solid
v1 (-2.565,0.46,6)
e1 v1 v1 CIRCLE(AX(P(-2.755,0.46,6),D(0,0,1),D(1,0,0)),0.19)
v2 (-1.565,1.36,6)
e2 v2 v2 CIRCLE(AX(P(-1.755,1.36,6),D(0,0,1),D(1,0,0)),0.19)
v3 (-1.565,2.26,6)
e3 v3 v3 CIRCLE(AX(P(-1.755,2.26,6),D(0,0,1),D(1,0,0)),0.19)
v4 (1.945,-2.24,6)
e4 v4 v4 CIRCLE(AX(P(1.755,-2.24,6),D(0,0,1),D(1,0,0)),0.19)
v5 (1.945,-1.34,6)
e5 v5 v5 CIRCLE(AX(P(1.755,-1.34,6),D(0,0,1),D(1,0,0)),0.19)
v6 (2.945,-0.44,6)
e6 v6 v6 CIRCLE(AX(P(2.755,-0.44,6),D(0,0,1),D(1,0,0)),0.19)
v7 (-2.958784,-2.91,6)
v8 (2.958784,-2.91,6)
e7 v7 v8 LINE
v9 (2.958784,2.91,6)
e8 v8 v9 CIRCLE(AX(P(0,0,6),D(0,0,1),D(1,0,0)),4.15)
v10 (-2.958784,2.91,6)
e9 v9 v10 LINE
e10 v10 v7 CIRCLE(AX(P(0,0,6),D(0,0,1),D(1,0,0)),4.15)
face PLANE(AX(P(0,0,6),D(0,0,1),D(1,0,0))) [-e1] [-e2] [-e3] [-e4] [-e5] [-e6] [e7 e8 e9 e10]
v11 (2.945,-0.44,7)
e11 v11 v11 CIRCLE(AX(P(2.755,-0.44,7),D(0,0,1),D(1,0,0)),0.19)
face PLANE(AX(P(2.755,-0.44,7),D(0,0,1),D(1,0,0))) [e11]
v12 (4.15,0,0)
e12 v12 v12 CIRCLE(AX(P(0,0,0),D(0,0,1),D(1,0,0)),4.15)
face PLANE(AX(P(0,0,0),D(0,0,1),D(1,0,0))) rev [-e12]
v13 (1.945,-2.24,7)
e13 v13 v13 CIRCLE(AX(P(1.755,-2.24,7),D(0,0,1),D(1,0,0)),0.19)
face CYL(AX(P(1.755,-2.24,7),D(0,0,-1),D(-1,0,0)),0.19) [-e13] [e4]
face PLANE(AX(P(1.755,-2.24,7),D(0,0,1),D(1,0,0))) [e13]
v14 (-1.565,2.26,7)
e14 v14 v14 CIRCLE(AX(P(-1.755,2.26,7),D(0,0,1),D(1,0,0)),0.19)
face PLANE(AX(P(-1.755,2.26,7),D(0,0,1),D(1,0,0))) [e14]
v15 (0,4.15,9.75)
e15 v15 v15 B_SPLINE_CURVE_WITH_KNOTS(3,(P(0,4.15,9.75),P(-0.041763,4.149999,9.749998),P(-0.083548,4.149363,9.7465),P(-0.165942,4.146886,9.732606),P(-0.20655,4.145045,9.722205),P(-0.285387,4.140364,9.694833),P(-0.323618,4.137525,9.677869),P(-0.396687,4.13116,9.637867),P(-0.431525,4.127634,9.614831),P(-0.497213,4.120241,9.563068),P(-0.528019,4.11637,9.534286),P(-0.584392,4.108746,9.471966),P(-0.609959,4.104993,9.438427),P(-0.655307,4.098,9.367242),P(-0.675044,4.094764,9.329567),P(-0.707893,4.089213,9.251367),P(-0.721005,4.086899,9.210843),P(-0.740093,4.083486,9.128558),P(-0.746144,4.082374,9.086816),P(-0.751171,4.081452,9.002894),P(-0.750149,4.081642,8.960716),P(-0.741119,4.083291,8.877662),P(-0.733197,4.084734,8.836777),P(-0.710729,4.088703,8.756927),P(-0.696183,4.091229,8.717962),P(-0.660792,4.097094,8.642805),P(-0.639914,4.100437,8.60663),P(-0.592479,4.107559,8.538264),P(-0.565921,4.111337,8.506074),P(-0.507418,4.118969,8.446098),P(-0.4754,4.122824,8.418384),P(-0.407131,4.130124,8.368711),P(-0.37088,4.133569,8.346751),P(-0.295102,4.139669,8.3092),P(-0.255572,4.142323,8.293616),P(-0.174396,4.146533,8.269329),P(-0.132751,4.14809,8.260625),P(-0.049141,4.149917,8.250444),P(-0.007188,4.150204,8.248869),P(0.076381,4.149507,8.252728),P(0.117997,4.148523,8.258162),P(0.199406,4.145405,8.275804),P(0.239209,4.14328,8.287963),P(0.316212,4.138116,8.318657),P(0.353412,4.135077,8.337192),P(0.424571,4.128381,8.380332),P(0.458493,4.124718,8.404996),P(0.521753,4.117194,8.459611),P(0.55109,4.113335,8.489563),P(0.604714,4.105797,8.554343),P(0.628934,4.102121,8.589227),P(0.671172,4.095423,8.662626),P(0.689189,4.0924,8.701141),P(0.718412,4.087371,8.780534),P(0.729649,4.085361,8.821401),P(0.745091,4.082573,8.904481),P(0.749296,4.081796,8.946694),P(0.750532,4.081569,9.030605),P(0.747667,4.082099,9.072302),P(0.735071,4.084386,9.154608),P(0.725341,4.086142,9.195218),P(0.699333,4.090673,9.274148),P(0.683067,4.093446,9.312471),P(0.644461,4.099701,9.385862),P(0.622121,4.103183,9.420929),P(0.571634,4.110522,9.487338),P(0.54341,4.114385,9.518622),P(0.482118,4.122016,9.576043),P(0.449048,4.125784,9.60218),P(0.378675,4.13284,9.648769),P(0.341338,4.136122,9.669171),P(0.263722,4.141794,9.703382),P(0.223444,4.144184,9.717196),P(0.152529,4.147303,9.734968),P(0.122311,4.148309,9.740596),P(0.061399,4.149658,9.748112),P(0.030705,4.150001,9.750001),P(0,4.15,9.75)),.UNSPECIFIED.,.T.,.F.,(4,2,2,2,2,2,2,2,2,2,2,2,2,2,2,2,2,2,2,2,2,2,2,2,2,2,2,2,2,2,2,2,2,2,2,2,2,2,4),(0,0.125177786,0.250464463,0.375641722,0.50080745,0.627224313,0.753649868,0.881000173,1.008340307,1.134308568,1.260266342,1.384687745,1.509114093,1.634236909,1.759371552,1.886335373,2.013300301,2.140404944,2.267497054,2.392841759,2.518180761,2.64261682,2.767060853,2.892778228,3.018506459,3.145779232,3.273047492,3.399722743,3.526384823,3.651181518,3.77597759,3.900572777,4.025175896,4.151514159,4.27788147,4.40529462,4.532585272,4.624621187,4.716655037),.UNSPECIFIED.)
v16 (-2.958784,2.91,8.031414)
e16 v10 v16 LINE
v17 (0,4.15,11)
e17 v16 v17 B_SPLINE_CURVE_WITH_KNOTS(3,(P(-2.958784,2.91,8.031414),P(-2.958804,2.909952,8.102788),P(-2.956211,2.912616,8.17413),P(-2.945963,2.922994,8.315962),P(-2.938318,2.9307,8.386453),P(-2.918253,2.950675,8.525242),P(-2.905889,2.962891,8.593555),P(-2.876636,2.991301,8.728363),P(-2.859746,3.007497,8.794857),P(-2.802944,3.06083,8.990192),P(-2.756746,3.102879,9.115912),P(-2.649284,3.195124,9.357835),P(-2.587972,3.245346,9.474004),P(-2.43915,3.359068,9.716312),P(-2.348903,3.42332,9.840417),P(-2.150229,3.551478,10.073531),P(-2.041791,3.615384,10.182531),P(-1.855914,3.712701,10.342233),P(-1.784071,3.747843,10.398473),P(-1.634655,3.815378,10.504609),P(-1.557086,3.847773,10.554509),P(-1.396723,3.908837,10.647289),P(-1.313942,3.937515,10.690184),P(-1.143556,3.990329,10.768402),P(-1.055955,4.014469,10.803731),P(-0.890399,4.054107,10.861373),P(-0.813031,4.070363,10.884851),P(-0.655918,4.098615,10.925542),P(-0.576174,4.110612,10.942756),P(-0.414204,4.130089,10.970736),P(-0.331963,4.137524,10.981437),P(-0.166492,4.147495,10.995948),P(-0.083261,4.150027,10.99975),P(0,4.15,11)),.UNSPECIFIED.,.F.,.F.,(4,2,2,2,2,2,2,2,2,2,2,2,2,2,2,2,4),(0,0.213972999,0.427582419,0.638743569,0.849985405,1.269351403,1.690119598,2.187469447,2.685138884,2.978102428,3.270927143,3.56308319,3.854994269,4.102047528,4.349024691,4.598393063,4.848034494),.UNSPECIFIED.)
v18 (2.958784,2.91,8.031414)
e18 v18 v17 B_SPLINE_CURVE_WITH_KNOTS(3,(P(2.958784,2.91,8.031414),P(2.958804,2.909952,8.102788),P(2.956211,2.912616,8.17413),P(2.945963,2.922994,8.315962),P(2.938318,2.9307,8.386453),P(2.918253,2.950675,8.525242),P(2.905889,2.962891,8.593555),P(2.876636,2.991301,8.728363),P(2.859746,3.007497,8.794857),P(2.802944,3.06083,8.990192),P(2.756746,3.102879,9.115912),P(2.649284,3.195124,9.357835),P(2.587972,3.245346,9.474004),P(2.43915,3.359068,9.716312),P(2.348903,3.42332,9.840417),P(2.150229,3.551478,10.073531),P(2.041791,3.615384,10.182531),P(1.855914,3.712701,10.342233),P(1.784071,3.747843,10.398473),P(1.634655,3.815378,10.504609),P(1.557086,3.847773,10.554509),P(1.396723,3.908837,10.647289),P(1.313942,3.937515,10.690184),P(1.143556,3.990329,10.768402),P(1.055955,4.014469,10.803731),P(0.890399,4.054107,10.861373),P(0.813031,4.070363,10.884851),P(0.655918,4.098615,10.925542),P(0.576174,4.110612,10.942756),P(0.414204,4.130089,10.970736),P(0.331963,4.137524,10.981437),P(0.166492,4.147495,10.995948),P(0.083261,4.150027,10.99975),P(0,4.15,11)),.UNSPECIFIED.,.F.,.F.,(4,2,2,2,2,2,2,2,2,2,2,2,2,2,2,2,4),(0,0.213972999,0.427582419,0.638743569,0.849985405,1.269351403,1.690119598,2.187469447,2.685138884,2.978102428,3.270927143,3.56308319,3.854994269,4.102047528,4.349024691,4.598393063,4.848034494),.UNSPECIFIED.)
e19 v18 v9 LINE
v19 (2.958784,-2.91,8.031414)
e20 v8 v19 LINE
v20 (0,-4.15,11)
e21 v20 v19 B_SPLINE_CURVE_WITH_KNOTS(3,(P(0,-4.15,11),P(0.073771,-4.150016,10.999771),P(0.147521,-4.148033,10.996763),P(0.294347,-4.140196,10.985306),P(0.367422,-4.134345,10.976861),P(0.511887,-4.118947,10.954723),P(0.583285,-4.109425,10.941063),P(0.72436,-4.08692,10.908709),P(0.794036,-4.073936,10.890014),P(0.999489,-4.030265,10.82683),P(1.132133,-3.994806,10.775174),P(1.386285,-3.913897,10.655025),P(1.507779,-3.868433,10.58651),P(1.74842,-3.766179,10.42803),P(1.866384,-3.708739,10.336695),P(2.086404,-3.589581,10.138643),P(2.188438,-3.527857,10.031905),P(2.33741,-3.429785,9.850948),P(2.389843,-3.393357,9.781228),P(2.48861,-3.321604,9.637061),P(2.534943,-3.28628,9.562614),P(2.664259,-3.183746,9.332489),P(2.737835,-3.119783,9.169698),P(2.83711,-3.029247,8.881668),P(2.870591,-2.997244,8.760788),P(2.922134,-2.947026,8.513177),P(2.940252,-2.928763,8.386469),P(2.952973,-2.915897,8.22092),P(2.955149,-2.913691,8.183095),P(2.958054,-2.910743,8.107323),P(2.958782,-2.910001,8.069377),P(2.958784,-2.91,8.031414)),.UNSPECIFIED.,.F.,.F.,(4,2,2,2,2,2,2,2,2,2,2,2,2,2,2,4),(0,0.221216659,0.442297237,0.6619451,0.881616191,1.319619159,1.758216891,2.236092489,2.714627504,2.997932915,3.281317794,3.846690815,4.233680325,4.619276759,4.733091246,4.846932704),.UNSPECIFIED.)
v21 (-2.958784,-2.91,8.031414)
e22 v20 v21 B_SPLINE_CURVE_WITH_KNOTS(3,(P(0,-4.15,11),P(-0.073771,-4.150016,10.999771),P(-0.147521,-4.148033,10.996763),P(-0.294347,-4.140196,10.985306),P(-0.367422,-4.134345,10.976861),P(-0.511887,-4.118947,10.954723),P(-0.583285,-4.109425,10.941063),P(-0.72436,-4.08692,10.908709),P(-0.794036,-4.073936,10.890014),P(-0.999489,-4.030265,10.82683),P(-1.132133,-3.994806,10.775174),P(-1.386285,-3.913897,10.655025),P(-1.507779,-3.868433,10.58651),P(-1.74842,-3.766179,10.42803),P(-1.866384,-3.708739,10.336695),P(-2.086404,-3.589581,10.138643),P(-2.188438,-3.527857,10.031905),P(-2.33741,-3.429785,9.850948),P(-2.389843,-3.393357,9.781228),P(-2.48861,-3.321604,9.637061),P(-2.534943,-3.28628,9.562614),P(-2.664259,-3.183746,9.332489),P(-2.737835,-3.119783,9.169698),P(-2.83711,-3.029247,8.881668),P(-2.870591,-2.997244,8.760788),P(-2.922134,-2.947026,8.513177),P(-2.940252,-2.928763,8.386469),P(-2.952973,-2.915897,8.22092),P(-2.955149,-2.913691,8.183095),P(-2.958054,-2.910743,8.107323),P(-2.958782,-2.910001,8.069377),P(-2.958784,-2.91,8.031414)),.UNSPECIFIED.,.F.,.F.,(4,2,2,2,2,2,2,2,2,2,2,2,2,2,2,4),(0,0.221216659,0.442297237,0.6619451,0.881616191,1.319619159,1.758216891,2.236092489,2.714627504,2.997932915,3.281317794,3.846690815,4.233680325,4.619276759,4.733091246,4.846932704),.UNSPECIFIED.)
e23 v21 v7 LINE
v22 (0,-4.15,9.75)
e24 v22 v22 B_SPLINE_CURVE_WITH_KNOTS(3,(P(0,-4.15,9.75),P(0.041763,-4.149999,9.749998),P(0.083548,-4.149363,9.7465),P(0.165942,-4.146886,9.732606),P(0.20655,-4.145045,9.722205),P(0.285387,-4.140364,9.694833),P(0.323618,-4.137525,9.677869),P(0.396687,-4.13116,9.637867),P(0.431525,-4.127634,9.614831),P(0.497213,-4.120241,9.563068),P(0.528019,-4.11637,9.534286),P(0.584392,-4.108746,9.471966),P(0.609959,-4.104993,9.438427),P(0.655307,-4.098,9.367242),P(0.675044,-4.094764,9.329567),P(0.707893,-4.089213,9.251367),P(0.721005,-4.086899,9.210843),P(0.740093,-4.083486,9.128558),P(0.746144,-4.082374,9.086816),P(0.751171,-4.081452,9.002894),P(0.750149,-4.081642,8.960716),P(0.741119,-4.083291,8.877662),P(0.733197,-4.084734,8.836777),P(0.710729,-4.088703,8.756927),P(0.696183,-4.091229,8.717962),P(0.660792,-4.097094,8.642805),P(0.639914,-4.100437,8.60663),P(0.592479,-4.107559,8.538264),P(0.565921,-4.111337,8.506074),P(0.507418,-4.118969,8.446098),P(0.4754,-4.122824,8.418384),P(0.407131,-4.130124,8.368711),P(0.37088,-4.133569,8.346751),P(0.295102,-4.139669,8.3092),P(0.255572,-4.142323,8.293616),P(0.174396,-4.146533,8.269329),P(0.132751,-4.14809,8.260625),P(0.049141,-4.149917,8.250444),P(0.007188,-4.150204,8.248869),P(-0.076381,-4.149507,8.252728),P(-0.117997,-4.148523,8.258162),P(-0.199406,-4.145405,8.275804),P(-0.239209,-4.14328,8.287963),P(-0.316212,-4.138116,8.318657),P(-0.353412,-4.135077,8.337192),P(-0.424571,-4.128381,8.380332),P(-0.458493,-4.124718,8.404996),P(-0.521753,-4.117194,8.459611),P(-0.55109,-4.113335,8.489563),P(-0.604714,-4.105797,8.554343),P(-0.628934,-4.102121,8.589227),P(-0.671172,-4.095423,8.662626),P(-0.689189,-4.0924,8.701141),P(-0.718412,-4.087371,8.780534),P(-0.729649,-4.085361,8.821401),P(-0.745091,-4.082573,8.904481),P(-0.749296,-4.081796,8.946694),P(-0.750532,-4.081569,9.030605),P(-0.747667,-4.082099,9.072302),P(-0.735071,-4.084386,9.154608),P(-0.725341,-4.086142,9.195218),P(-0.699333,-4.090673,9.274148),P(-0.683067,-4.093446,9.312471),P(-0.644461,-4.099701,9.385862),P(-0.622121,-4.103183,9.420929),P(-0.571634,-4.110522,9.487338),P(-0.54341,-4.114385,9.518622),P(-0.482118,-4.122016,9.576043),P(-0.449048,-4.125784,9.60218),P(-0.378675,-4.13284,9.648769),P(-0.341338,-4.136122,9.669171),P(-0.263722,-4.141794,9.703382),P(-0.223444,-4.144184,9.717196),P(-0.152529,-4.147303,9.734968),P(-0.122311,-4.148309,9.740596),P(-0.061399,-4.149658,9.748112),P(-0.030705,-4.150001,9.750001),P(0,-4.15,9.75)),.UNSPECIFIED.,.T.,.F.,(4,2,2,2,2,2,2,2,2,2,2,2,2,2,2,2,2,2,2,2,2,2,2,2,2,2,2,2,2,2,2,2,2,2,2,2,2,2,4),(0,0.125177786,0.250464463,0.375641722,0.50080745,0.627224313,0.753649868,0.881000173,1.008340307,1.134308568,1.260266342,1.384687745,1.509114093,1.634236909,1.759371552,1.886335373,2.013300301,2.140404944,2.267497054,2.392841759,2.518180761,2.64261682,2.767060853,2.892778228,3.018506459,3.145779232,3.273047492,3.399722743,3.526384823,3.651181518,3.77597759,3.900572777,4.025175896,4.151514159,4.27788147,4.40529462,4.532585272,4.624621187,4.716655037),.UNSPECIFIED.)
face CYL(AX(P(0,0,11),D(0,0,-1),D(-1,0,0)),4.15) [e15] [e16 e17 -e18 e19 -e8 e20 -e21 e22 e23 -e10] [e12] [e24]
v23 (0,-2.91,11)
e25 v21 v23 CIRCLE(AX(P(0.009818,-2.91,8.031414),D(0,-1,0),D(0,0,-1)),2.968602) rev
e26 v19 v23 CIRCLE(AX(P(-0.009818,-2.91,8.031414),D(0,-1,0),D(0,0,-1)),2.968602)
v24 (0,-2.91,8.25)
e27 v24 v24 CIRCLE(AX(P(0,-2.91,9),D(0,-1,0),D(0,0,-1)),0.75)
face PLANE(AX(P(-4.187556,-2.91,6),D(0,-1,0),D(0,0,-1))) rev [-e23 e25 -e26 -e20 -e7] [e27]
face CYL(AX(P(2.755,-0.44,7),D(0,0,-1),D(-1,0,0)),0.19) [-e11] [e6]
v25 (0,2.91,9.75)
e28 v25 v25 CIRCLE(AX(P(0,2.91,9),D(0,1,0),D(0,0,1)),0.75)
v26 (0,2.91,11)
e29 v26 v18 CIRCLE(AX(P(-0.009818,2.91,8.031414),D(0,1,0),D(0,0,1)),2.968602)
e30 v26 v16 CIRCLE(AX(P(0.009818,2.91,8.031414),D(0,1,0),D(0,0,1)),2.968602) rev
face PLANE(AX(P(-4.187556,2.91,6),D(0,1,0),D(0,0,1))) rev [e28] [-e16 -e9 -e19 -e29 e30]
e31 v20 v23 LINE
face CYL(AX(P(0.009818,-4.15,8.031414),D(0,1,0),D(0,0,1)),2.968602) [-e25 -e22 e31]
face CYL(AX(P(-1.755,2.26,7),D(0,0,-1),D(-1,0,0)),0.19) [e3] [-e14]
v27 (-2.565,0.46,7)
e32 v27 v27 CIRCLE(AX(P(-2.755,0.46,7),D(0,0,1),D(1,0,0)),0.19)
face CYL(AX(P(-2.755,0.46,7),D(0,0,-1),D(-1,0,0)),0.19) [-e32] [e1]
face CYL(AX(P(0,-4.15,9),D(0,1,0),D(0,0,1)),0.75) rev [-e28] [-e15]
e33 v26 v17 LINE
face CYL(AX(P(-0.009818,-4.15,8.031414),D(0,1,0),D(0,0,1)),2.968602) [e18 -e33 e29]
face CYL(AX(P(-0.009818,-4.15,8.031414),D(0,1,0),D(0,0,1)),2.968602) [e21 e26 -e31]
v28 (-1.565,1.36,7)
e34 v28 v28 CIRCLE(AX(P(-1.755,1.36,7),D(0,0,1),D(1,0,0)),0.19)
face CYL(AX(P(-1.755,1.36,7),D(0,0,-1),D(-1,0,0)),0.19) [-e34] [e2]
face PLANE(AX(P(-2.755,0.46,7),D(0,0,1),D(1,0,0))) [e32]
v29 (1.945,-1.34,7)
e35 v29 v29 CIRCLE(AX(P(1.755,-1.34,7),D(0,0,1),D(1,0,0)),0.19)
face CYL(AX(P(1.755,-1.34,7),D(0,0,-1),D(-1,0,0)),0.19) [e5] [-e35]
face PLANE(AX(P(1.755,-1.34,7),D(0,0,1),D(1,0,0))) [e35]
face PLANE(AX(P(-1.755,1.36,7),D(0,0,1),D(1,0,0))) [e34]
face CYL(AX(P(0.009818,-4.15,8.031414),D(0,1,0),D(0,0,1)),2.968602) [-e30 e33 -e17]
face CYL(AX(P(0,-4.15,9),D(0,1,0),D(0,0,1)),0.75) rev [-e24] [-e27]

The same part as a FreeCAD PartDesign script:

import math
import FreeCAD as App
import Part
import Sketcher

V = App.Vector

doc = App.newDocument("Part")
body = doc.addObject("PartDesign::Body", "Body")

sketch1 = doc.addObject("Sketcher::SketchObject", "Sketch")
body.addObject(sketch1)
sketch1.AttachmentSupport = (doc.XY_Plane, [""])
sketch1.MapMode = "FlatFace"
sketch1.addGeometry(Part.Circle(V(0, 0, 0), V(0, 0, 1), 4.2), False)
sketch1.addConstraint(Sketcher.Constraint("Coincident", 0, 3, -1, 1))
sketch1.addConstraint(Sketcher.Constraint("Diameter", 0, 8.3))
pad1 = doc.addObject("PartDesign::Pad", "Pad")
body.addObject(pad1)
pad1.Profile = sketch1
pad1.Length = 11

sketch2 = doc.addObject("Sketcher::SketchObject", "Sketch001")
body.addObject(sketch2)
sketch2.AttachmentSupport = (doc.XY_Plane, [""])
sketch2.MapMode = "FlatFace"
sketch2.AttachmentOffset = App.Placement(V(0, 0, 11), App.Rotation())
sketch2.addGeometry(Part.LineSegment(V(-4, 3, 0), V(-4, -3, 0)), False)
sketch2.addGeometry(Part.LineSegment(V(-4, -3, 0), V(4, -3, 0)), False)
sketch2.addGeometry(Part.LineSegment(V(4, -3, 0), V(4, 3, 0)), False)
sketch2.addGeometry(Part.LineSegment(V(4, 3, 0), V(-4, 3, 0)), False)
sketch2.addConstraint(Sketcher.Constraint("Coincident", 0, 2, 1, 1))
sketch2.addConstraint(Sketcher.Constraint("Coincident", 1, 2, 2, 1))
sketch2.addConstraint(Sketcher.Constraint("Coincident", 2, 2, 3, 1))
sketch2.addConstraint(Sketcher.Constraint("Coincident", 3, 2, 0, 1))
sketch2.addConstraint(Sketcher.Constraint("Vertical", 0))
sketch2.addConstraint(Sketcher.Constraint("Horizontal", 1))
sketch2.addConstraint(Sketcher.Constraint("Vertical", 2))
sketch2.addConstraint(Sketcher.Constraint("Horizontal", 3))
sketch2.addConstraint(Sketcher.Constraint("Symmetric", 0, 2, 2, 2, -1, 1))
sketch2.addConstraint(Sketcher.Constraint("DistanceY", 0, 2, 0, 1, 5.82))
sketch2.addConstraint(Sketcher.Constraint("DistanceX", 1, 1, 1, 2, 8.375111))
pocket1 = doc.addObject("PartDesign::Pocket", "Pocket")
body.addObject(pocket1)
pocket1.Profile = sketch2
pocket1.Length = 5

sketch3 = doc.addObject("Sketcher::SketchObject", "Sketch002")
body.addObject(sketch3)
sketch3.AttachmentSupport = (doc.XZ_Plane, [""])
sketch3.MapMode = "FlatFace"
sketch3.addGeometry(Part.LineSegment(V(-3, 8, 0), V(-3, 11, 0)), False)
sketch3.addGeometry(Part.LineSegment(V(-3, 11, 0), V(0, 11, 0)), False)
sketch3.addGeometry(Part.ArcOfCircle(Part.Circle(V(0, 8, 0), V(0, 0, 1), 3), math.radians(90), math.radians(180)), False)
sketch3.addConstraint(Sketcher.Constraint("Coincident", 0, 2, 1, 1))
sketch3.addConstraint(Sketcher.Constraint("Coincident", 1, 2, 2, 1))
sketch3.addConstraint(Sketcher.Constraint("Tangent", 2, 2, 0, 1))
sketch3.addConstraint(Sketcher.Constraint("Vertical", 0))
sketch3.addConstraint(Sketcher.Constraint("Horizontal", 1))
sketch3.addConstraint(Sketcher.Constraint("PointOnObject", 1, 2, -2))
sketch3.addConstraint(Sketcher.Constraint("DistanceY", -1, 1, 0, 2, 11.0))
sketch3.addConstraint(Sketcher.Constraint("Radius", 2, 2.968602))
sketch3.addConstraint(Sketcher.Constraint("DistanceX", 1, 1, 1, 2, 2.958784))
pocket2 = doc.addObject("PartDesign::Pocket", "Pocket001")
body.addObject(pocket2)
pocket2.Profile = sketch3
pocket2.Length = 26.935517
pocket2.Midplane = True
doc.recompute()

mirrored = doc.addObject("PartDesign::Mirrored", "Mirrored")
body.addObject(mirrored)
mirrored.Originals = [pocket2]
mirrored.MirrorPlane = (doc.YZ_Plane, [""])
body.Tip = mirrored

sketch4 = doc.addObject("Sketcher::SketchObject", "Sketch003")
body.addObject(sketch4)
sketch4.AttachmentSupport = (doc.XZ_Plane, [""])
sketch4.MapMode = "FlatFace"
sketch4.addGeometry(Part.Circle(V(0, 9, 0), V(0, 0, 1), 0.8), False)
sketch4.addConstraint(Sketcher.Constraint("PointOnObject", 0, 3, -2))
sketch4.addConstraint(Sketcher.Constraint("Diameter", 0, 1.5))
sketch4.addConstraint(Sketcher.Constraint("DistanceY", -1, 1, 0, 3, 9.0))
pocket3 = doc.addObject("PartDesign::Pocket", "Pocket002")
body.addObject(pocket3)
pocket3.Profile = sketch4
pocket3.Type = "ThroughAll"
pocket3.Midplane = True

sketch5 = doc.addObject("Sketcher::SketchObject", "Sketch004")
body.addObject(sketch5)
sketch5.AttachmentSupport = (doc.XY_Plane, [""])
sketch5.MapMode = "FlatFace"
sketch5.AttachmentOffset = App.Placement(V(0, 0, 6), App.Rotation())
sketch5.addGeometry(Part.Circle(V(-1.75, 2.26, 0), V(0, 0, 1), 0.19), False)
sketch5.addGeometry(Part.Circle(V(-1.75, 1.36, 0), V(0, 0, 1), 0.19), False)
sketch5.addGeometry(Part.Circle(V(1.75, -1.34, 0), V(0, 0, 1), 0.19), False)
sketch5.addGeometry(Part.Circle(V(1.75, -2.24, 0), V(0, 0, 1), 0.19), False)
sketch5.addGeometry(Part.Circle(V(-2.75, 0.46, 0), V(0, 0, 1), 0.19), False)
sketch5.addGeometry(Part.Circle(V(2.75, -0.44, 0), V(0, 0, 1), 0.19), False)
sketch5.addConstraint(Sketcher.Constraint("Equal", 0, 1))
sketch5.addConstraint(Sketcher.Constraint("Equal", 1, 2))
sketch5.addConstraint(Sketcher.Constraint("Equal", 2, 3))
sketch5.addConstraint(Sketcher.Constraint("Equal", 3, 4))
sketch5.addConstraint(Sketcher.Constraint("Equal", 4, 5))
sketch5.addConstraint(Sketcher.Constraint("Vertical", 0, 3, 1, 3))
sketch5.addConstraint(Sketcher.Constraint("Vertical", 2, 3, 3, 3))
sketch5.addConstraint(Sketcher.Constraint("Diameter", 0, 0.38))
sketch5.addConstraint(Sketcher.Constraint("DistanceX", 4, 3, 1, 3, 1.0))
sketch5.addConstraint(Sketcher.Constraint("DistanceX", 2, 3, 5, 3, 1.0))
sketch5.addConstraint(Sketcher.Constraint("DistanceY", 1, 3, 0, 3, 0.9))
sketch5.addConstraint(Sketcher.Constraint("DistanceY", 2, 3, 1, 3, 2.7))
sketch5.addConstraint(Sketcher.Constraint("DistanceY", 3, 3, 2, 3, 0.9))
sketch5.addConstraint(Sketcher.Constraint("DistanceY", 4, 3, 1, 3, 0.9))
sketch5.addConstraint(Sketcher.Constraint("DistanceY", 2, 3, 5, 3, 0.9))
sketch5.addConstraint(Sketcher.Constraint("DistanceY", -1, 1, 0, 3, 2.26))
sketch5.addConstraint(Sketcher.Constraint("DistanceX", 1, 3, 2, 3, 3.51))
sketch5.addConstraint(Sketcher.Constraint("DistanceX", 0, 3, -1, 1, 1.755))
pad2 = doc.addObject("PartDesign::Pad", "Pad001")
body.addObject(pad2)
pad2.Profile = sketch5
pad2.Length = 1

doc.recompute()
